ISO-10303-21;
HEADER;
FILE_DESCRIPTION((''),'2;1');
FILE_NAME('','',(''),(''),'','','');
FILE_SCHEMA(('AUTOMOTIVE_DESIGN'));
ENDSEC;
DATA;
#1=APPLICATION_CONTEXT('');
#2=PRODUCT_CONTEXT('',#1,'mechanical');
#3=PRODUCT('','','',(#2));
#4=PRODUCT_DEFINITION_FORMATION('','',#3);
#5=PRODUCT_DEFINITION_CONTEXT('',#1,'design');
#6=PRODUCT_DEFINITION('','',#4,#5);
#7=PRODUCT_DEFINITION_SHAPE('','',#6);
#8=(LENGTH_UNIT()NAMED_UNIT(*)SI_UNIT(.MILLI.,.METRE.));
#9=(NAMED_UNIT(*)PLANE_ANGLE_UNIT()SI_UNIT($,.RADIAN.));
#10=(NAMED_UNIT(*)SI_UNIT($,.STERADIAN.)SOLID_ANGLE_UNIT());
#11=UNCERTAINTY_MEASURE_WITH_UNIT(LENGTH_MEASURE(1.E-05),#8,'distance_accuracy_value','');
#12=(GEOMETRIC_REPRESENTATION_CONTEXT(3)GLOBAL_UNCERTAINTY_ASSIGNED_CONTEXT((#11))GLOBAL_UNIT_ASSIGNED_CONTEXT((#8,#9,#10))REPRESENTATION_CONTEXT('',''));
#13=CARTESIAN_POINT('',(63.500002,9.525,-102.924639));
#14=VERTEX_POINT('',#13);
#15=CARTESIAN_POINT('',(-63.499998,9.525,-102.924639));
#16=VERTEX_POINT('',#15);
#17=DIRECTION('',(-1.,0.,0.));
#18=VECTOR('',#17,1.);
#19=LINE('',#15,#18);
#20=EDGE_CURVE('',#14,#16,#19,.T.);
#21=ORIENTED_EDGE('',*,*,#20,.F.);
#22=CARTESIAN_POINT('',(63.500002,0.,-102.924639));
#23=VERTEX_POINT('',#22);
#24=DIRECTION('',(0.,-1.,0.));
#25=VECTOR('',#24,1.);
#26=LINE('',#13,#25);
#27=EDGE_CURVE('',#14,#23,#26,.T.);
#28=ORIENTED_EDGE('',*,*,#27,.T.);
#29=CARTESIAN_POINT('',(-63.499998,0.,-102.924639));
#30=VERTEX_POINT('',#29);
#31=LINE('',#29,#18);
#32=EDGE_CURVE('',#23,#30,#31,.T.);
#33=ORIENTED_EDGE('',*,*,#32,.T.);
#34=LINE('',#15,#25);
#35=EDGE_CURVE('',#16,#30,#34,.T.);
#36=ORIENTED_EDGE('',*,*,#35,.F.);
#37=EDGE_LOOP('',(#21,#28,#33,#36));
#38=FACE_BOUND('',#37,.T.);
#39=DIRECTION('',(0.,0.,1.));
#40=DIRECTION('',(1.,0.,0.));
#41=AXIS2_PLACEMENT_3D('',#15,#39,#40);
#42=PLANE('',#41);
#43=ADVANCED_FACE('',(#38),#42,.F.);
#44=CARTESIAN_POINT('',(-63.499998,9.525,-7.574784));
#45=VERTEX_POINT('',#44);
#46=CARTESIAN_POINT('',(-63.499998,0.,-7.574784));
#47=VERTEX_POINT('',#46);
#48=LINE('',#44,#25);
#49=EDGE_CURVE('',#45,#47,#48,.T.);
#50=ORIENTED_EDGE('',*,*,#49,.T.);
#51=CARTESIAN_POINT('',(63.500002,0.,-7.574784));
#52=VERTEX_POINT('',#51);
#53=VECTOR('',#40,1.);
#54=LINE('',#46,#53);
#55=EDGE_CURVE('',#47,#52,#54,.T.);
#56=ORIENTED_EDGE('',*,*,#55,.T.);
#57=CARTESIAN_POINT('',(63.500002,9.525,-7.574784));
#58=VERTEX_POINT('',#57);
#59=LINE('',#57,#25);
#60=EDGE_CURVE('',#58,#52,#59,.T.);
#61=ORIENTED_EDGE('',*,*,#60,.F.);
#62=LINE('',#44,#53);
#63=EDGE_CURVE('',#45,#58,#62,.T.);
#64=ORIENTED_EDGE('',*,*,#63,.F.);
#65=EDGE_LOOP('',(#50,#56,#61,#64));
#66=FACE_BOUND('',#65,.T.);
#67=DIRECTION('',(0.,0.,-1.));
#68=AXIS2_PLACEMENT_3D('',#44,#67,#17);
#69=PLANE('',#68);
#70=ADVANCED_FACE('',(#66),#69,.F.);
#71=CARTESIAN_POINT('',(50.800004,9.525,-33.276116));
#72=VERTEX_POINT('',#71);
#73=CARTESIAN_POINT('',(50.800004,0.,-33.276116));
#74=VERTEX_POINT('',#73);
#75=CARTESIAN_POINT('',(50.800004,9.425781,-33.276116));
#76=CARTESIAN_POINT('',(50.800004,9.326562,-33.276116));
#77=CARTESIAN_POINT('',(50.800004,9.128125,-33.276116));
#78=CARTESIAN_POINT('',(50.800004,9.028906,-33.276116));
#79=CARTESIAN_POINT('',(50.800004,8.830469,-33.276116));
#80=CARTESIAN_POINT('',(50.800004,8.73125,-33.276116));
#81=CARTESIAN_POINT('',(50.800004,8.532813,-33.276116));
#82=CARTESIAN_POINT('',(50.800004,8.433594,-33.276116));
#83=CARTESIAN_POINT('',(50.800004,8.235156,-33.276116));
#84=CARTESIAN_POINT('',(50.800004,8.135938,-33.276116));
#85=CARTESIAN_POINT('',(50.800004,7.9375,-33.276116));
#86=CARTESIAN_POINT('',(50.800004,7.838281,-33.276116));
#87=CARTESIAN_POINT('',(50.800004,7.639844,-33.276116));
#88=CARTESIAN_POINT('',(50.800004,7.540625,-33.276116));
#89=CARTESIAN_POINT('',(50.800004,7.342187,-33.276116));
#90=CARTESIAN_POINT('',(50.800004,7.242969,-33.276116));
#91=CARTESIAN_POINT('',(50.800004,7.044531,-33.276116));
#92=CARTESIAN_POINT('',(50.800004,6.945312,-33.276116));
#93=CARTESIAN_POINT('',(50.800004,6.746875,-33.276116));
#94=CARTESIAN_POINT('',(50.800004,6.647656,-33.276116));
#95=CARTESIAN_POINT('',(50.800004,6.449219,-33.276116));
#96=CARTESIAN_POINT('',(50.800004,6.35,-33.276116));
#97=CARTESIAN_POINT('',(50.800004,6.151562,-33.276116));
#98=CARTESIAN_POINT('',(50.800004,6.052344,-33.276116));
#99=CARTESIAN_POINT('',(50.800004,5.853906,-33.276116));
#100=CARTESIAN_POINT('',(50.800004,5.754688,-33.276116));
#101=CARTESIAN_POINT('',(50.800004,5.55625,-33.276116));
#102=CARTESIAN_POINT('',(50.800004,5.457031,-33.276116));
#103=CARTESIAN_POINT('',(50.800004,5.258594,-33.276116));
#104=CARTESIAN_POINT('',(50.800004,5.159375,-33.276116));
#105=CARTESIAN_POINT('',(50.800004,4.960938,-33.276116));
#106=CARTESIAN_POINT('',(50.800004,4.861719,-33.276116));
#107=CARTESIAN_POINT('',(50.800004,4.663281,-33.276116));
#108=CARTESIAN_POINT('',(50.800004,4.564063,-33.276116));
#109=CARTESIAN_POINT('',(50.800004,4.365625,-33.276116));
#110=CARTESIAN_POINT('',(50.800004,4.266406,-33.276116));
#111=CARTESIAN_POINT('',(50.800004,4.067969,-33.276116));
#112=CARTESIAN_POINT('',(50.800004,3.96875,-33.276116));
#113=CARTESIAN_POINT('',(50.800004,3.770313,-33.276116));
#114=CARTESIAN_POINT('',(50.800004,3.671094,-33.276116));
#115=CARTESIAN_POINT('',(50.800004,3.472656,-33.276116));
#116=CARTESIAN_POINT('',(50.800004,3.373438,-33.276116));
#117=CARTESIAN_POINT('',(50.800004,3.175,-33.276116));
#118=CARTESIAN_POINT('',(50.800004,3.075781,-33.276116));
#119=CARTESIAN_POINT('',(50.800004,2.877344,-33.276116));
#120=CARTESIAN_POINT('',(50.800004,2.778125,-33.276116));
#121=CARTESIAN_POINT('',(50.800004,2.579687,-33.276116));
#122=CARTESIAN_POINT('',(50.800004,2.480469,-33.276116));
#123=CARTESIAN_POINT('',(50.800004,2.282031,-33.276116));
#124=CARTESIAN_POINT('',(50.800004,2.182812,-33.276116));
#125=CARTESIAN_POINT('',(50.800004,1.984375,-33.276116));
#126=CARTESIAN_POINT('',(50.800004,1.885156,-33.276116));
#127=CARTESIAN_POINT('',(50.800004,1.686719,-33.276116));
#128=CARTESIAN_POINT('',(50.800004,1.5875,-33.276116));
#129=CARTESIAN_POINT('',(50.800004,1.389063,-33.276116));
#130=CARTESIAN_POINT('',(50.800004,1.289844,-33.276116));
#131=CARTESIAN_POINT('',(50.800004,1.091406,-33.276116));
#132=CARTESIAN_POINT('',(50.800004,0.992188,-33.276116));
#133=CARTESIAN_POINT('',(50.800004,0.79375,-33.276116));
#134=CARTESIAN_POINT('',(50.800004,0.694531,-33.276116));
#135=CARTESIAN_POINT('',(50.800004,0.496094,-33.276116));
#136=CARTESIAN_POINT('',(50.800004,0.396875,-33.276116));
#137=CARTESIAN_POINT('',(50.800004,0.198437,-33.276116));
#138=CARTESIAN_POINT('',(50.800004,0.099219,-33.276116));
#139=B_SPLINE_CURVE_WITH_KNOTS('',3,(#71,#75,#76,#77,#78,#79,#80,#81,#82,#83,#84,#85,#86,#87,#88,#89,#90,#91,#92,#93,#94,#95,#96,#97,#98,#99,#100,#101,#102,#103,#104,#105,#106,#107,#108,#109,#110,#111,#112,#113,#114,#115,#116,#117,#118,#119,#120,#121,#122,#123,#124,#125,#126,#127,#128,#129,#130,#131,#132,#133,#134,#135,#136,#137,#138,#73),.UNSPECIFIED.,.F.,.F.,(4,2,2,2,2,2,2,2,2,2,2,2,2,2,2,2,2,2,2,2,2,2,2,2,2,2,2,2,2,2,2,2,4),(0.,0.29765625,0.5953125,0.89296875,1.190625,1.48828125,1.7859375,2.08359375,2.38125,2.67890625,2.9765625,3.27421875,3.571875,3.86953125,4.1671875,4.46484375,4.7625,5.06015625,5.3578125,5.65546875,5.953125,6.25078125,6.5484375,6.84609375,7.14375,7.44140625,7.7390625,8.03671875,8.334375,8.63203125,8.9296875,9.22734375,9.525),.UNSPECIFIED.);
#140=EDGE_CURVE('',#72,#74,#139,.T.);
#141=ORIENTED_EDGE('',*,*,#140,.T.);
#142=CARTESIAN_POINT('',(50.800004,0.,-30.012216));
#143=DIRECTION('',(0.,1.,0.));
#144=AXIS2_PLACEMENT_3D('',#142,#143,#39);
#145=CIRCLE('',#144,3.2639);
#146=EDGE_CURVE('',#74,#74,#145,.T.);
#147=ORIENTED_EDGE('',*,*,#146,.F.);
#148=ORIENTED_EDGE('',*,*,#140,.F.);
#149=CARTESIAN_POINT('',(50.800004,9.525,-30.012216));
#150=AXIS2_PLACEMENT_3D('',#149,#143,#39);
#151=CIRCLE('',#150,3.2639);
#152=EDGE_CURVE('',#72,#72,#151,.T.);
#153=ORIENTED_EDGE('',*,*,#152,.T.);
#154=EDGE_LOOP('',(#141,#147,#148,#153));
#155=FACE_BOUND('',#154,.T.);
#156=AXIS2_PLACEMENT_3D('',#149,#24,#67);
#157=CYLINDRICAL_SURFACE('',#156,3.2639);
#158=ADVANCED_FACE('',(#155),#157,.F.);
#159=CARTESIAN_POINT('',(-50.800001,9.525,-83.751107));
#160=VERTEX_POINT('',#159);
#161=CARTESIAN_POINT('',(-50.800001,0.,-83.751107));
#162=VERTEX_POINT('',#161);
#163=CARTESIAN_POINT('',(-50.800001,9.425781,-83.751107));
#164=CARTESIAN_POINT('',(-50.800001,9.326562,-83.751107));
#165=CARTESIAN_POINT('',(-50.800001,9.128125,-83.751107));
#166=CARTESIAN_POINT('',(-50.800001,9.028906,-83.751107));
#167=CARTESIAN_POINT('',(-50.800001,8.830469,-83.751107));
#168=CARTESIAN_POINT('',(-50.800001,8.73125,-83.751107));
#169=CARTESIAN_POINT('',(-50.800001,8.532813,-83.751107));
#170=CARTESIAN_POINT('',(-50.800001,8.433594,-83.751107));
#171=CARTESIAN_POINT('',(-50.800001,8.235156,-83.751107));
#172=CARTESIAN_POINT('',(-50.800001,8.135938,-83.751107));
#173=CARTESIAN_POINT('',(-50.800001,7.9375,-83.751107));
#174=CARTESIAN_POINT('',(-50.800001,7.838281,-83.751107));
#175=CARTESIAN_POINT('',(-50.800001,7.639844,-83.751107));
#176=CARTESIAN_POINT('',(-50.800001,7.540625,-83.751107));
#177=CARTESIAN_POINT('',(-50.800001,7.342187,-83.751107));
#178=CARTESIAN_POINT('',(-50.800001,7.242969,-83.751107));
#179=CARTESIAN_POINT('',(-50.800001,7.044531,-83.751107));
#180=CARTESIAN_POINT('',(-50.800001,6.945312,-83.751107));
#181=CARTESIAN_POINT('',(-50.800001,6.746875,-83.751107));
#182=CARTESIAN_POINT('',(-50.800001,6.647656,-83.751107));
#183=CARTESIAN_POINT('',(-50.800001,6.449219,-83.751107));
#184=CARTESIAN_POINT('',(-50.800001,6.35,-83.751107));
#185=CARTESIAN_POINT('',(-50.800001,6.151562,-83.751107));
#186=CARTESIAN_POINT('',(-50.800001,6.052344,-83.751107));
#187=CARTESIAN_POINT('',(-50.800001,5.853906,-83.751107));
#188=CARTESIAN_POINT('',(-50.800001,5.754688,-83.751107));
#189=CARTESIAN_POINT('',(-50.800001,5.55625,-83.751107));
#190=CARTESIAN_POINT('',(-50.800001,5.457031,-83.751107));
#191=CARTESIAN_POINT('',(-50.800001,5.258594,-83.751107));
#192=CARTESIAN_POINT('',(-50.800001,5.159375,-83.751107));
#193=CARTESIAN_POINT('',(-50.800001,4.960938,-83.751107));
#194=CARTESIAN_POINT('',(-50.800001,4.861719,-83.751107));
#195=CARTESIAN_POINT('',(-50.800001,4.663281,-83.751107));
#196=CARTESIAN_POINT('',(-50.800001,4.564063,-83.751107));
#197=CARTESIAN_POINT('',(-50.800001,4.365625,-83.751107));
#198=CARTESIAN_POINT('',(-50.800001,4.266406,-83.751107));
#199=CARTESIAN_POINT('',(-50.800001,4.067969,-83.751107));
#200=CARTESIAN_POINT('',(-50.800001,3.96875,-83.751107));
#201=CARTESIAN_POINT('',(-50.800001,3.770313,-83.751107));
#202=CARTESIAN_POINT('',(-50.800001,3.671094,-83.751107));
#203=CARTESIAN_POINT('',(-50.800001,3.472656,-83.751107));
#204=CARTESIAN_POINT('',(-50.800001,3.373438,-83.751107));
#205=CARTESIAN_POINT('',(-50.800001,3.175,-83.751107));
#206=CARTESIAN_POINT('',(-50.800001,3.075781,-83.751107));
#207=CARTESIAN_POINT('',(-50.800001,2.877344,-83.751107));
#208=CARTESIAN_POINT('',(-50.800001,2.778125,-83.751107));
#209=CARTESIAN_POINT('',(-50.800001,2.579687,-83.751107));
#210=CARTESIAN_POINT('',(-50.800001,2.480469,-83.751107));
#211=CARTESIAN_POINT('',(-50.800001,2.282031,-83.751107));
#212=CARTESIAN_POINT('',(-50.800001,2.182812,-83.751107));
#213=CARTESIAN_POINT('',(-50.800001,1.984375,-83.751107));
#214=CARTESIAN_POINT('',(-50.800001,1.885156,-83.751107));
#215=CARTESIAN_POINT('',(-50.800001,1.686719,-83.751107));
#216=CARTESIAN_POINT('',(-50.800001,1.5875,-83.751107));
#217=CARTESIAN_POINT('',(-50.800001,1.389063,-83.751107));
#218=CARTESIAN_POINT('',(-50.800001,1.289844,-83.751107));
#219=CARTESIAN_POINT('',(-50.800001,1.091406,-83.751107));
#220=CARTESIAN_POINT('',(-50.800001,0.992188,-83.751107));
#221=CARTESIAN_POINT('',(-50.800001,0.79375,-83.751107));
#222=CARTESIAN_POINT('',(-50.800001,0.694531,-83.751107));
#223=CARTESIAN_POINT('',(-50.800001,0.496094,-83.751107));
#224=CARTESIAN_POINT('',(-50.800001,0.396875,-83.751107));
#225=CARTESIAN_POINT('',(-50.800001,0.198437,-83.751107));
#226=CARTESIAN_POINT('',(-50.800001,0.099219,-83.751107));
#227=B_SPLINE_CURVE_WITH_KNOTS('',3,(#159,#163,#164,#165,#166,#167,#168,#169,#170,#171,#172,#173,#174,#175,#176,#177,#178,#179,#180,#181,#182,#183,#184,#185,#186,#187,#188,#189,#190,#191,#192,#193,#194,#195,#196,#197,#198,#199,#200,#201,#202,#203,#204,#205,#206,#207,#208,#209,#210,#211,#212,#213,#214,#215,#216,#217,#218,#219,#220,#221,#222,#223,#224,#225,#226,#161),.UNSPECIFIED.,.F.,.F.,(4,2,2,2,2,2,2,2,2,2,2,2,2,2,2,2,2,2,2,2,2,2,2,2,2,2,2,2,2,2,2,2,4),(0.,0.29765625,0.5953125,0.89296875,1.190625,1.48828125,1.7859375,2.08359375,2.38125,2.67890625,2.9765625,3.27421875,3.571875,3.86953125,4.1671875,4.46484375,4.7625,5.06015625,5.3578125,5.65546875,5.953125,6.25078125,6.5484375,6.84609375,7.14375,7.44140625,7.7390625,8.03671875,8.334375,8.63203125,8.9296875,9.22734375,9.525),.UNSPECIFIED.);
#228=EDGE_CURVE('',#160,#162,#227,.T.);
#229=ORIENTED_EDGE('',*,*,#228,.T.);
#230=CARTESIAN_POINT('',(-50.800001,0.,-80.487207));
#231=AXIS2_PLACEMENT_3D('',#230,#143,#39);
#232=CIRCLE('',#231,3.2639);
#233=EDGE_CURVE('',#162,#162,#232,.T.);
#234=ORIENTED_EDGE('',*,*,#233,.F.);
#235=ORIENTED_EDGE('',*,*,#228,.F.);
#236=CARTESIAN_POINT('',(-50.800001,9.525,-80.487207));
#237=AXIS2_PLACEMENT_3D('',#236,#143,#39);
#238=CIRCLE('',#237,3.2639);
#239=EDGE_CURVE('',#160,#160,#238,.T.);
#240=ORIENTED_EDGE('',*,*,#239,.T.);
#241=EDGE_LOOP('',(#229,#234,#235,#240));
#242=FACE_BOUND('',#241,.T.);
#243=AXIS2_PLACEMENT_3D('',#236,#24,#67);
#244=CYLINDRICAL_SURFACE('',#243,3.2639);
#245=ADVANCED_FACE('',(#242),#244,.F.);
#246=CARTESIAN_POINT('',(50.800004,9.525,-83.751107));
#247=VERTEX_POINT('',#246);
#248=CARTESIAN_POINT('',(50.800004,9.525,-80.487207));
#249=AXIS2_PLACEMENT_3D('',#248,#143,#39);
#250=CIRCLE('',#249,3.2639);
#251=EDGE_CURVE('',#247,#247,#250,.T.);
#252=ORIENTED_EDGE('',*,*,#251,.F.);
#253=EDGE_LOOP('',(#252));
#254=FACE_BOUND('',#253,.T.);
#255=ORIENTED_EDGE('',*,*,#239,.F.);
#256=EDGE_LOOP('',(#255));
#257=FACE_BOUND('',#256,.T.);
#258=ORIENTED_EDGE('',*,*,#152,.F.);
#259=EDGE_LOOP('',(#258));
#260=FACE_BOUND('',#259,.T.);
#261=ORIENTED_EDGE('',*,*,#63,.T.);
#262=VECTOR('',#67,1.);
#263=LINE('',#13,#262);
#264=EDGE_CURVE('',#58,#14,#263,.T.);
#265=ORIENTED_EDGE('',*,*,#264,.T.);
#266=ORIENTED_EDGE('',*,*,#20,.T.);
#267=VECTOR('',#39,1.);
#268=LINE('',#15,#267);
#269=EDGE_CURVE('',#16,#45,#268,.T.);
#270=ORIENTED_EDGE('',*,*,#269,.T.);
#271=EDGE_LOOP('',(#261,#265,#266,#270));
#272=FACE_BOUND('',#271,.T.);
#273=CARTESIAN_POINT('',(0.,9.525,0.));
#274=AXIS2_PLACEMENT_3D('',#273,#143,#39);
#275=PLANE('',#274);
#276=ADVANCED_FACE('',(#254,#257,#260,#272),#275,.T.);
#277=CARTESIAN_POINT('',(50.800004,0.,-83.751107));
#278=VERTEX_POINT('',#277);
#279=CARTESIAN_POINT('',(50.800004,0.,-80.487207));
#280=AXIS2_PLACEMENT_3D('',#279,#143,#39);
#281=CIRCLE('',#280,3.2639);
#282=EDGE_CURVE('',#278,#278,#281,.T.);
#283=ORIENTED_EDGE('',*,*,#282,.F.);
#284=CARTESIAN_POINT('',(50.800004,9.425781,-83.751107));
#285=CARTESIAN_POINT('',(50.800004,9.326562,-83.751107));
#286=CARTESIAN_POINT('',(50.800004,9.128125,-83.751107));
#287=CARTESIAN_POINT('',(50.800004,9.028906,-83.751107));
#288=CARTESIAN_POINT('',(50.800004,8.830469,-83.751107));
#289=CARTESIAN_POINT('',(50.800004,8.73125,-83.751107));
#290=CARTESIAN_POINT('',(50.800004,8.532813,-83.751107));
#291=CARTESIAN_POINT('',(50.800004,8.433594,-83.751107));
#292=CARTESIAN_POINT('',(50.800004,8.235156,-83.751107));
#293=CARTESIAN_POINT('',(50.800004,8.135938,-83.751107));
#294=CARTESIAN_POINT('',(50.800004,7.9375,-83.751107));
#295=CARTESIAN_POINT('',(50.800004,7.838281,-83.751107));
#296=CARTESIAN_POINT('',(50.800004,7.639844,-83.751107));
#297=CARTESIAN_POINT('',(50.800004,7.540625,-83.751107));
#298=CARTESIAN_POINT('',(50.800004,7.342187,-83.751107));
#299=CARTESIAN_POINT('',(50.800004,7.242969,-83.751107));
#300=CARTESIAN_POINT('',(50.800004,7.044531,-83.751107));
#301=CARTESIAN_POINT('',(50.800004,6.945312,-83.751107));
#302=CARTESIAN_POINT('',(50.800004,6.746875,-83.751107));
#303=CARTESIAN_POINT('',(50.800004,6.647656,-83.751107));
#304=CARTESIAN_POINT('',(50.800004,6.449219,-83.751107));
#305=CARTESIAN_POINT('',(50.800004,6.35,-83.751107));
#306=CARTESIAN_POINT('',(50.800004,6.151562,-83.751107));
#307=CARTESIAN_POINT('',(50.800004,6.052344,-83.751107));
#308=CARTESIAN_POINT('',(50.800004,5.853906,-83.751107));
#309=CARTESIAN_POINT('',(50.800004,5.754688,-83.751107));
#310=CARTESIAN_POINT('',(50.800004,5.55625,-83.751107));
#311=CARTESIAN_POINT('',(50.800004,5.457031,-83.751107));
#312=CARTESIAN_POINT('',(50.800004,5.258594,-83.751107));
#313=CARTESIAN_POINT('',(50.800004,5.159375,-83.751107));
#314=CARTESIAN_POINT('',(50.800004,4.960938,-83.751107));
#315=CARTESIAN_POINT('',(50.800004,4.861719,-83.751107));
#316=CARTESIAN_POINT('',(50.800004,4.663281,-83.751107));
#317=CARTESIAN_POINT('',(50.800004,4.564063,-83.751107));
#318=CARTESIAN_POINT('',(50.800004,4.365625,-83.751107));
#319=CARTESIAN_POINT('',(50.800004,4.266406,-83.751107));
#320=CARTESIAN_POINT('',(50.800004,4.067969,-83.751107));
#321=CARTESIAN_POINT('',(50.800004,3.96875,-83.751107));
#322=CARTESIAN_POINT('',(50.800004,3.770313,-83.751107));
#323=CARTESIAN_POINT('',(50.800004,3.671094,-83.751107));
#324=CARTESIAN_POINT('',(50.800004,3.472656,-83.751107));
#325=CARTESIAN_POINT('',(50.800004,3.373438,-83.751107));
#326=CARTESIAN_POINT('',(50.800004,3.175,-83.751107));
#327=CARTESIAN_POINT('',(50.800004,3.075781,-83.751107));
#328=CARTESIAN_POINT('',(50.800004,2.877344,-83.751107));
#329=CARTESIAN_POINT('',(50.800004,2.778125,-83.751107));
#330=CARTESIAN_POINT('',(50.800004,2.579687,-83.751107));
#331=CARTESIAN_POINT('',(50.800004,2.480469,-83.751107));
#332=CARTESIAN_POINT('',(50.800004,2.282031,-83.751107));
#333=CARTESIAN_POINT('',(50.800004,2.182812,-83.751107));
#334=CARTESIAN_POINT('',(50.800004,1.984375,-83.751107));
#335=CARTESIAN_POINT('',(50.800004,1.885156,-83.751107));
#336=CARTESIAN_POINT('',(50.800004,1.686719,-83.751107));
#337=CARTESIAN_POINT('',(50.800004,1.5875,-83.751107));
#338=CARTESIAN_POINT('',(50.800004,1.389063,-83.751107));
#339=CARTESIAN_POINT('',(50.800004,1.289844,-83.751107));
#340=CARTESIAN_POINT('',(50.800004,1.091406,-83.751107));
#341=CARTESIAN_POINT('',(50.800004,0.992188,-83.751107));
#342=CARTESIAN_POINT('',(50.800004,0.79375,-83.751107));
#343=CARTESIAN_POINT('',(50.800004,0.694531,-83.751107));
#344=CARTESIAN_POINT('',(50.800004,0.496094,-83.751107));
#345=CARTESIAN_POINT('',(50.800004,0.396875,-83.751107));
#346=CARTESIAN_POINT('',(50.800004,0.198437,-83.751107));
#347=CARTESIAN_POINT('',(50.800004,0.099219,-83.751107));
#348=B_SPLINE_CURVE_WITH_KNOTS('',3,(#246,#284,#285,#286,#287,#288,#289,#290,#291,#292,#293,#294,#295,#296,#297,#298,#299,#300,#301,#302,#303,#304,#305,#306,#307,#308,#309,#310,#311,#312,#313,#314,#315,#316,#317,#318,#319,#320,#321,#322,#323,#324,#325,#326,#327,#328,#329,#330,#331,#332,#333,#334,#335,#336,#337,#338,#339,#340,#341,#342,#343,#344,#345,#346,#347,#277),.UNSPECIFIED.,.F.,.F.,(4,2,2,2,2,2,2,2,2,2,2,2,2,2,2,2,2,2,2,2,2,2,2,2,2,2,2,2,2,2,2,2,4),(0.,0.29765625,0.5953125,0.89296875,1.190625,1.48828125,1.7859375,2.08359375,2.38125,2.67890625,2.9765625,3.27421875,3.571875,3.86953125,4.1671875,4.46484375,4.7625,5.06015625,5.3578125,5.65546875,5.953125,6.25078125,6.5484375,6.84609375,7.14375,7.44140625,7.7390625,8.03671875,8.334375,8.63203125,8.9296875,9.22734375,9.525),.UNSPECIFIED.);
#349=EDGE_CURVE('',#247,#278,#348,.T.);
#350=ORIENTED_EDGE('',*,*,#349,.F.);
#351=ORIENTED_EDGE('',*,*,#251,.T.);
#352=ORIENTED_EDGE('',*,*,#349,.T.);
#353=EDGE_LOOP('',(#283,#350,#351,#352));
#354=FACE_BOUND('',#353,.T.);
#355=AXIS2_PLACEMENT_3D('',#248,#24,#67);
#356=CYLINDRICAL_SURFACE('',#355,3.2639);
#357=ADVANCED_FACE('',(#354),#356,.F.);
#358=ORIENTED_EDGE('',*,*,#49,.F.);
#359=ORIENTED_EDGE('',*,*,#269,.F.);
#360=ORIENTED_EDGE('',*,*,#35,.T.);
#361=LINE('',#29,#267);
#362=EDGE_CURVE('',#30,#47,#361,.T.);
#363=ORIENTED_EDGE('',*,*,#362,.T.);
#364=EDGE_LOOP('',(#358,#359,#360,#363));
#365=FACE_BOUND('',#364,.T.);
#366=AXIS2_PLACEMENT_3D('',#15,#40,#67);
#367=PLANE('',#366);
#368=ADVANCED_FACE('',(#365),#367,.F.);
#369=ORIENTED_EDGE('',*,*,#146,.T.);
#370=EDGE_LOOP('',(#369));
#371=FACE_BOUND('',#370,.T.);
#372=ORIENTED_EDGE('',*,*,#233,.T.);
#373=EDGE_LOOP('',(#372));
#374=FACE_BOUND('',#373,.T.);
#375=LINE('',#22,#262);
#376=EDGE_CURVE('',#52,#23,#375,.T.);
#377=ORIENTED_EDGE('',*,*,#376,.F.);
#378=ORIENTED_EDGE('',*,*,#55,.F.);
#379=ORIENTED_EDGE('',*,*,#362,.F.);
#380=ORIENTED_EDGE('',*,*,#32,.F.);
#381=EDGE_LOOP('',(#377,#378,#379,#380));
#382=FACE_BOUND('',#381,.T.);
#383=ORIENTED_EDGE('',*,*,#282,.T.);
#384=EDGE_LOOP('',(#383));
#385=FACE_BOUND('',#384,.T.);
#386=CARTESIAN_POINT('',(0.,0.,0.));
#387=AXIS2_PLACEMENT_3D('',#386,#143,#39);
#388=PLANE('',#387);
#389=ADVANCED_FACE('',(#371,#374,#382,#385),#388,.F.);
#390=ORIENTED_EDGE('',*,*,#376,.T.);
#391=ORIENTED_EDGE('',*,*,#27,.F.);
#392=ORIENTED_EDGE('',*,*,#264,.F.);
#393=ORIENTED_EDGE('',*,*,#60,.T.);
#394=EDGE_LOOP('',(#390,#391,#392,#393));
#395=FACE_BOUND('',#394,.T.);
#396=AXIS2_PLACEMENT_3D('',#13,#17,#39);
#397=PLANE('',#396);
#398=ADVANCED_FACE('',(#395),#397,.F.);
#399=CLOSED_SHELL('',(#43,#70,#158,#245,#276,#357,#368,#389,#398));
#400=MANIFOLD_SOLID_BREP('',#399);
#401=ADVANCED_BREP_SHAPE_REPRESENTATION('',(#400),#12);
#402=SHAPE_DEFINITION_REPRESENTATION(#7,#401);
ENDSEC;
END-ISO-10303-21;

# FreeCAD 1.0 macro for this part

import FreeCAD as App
import Part
import Sketcher

V = App.Vector
Q = App.Units.Quantity


def add_polygon(sketch, points):
    """Adds a closed chain of lines whose ends are joined by coincident constraints."""
    first, n = sketch.GeometryCount, len(points)
    for a, b in zip(points, points[1:] + points[:1]):
        sketch.addGeometry(Part.LineSegment(App.Vector(*a, 0), App.Vector(*b, 0)), False)
    for i in range(n):
        sketch.addConstraint(Sketcher.Constraint("Coincident", first + i, 2, first + (i + 1) % n, 1))

doc = App.newDocument("Part")
body = doc.addObject("PartDesign::Body", "Body")

# Sketch on XZ plane
sketch1 = body.newObject("Sketcher::SketchObject", "Sketch")
sketch1.AttachmentSupport = (doc.getObject("XZ_Plane"), [""])
sketch1.MapMode = "FlatFace"
add_polygon(sketch1, [(-63.5, -102.9), (-63.5, -7.6), (63.5, -7.6), (63.5, -102.9)])  # lines 0-3
sketch1.addGeometry(Part.Circle(V(50.8, -30, 0), V(0, 0, 1), 3.3), False)  # 4
sketch1.addGeometry(Part.Circle(V(-50.8, -80.5, 0), V(0, 0, 1), 3.3), False)  # 5
sketch1.addGeometry(Part.Circle(V(50.8, -80.5, 0), V(0, 0, 1), 3.3), False)  # 6
sketch1.addConstraint(Sketcher.Constraint("Vertical", 0))
sketch1.addConstraint(Sketcher.Constraint("Horizontal", 1))
sketch1.addConstraint(Sketcher.Constraint("Vertical", 2))
sketch1.addConstraint(Sketcher.Constraint("Horizontal", 3))
sketch1.addConstraint(Sketcher.Constraint("Equal", 4, 5))
sketch1.addConstraint(Sketcher.Constraint("Equal", 5, 6))
sketch1.addConstraint(Sketcher.Constraint("Symmetric", 5, 3, 6, 3, -2))
sketch1.addConstraint(Sketcher.Constraint("Vertical", 4, 3, 6, 3))
sketch1.addConstraint(Sketcher.Constraint("DistanceX", 1, 1, 1, 2, Q("5 in")))
sketch1.addConstraint(Sketcher.Constraint("Diameter", 4, Q("0.257 in")))
sketch1.addConstraint(Sketcher.Constraint("DistanceX", -1, 1, 4, 3, Q("2.0000001 in")))
sketch1.addConstraint(Sketcher.Constraint("DistanceX", 0, 2, -1, 1, Q("2.4999999 in")))
sketch1.addConstraint(Sketcher.Constraint("DistanceY", 0, 1, 0, 2, Q("95.349855 mm")))
sketch1.addConstraint(Sketcher.Constraint("DistanceY", 2, 2, -1, 1, Q("102.924639 mm")))
sketch1.addConstraint(Sketcher.Constraint("DistanceY", 5, 3, 4, 3, Q("50.474991 mm")))
sketch1.addConstraint(Sketcher.Constraint("DistanceY", 4, 3, -1, 1, Q("30.012216 mm")))
pad1 = body.newObject("PartDesign::Pad", "Pad")
pad1.Profile = sketch1
pad1.Length = Q("0.375 in")
pad1.Reversed = True

doc.recompute()
